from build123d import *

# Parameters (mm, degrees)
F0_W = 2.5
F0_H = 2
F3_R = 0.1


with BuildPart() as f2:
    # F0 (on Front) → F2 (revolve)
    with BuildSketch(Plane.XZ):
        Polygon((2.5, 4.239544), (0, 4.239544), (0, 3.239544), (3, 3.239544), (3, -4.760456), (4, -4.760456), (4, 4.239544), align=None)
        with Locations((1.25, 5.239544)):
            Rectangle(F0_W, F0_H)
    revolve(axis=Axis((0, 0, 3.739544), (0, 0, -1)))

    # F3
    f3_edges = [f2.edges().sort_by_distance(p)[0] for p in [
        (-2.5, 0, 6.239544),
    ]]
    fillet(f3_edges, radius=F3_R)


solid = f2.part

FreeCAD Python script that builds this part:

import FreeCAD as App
import Part
import Sketcher
Q = App.Units.Quantity


def edges_at(feature, points):
    """Names of the edges that pass closest to the given points."""
    edges = feature.Shape.Edges
    near = lambda p: min(range(len(edges)), key=lambda i: edges[i].distToShape(Part.Vertex(*p))[0])
    return sorted({f"Edge{near(p) + 1}" for p in points})

doc = App.newDocument("Part")
body = doc.addObject("PartDesign::Body", "Body")

# Sketch on XZ plane
sketch1 = body.newObject("Sketcher::SketchObject", "Sketch")
sketch1.AttachmentSupport = (doc.getObject("XZ_Plane"), [""])
sketch1.MapMode = "FlatFace"
sketch1.addGeometry(Part.LineSegment(App.Vector(0, 3.2, 0), App.Vector(3, 3.2, 0)), False)
sketch1.addGeometry(Part.LineSegment(App.Vector(3, 3.2, 0), App.Vector(3, -4.8, 0)), False)
sketch1.addGeometry(Part.LineSegment(App.Vector(3, -4.8, 0), App.Vector(4, -4.8, 0)), False)
sketch1.addGeometry(Part.LineSegment(App.Vector(4, -4.8, 0), App.Vector(4, 4.2, 0)), False)
sketch1.addGeometry(Part.LineSegment(App.Vector(4, 4.2, 0), App.Vector(2.5, 4.2, 0)), False)
sketch1.addGeometry(Part.LineSegment(App.Vector(2.5, 4.2, 0), App.Vector(2.5, 6.2, 0)), False)
sketch1.addGeometry(Part.LineSegment(App.Vector(2.5, 6.2, 0), App.Vector(0, 6.2, 0)), False)
sketch1.addGeometry(Part.LineSegment(App.Vector(0, 6.2, 0), App.Vector(0, 3.2, 0)), False)
sketch1.addConstraint(Sketcher.Constraint("Coincident", 0, 2, 1, 1))
sketch1.addConstraint(Sketcher.Constraint("Coincident", 1, 2, 2, 1))
sketch1.addConstraint(Sketcher.Constraint("Coincident", 2, 2, 3, 1))
sketch1.addConstraint(Sketcher.Constraint("Coincident", 3, 2, 4, 1))
sketch1.addConstraint(Sketcher.Constraint("Coincident", 4, 2, 5, 1))
sketch1.addConstraint(Sketcher.Constraint("Coincident", 5, 2, 6, 1))
sketch1.addConstraint(Sketcher.Constraint("Coincident", 6, 2, 7, 1))
sketch1.addConstraint(Sketcher.Constraint("Coincident", 7, 2, 0, 1))
sketch1.addConstraint(Sketcher.Constraint("Horizontal", 0))
sketch1.addConstraint(Sketcher.Constraint("Vertical", 1))
sketch1.addConstraint(Sketcher.Constraint("Horizontal", 2))
sketch1.addConstraint(Sketcher.Constraint("Vertical", 3))
sketch1.addConstraint(Sketcher.Constraint("Horizontal", 4))
sketch1.addConstraint(Sketcher.Constraint("Vertical", 5))
sketch1.addConstraint(Sketcher.Constraint("Horizontal", 6))
sketch1.addConstraint(Sketcher.Constraint("Vertical", 7))
sketch1.addConstraint(Sketcher.Constraint("PointOnObject", 6, 2, -2))
sketch1.addConstraint(Sketcher.Constraint("Equal", 0, 7))
sketch1.addConstraint(Sketcher.Constraint("DistanceX", 0, 1, 0, 2, Q("3 mm")))
sketch1.addConstraint(Sketcher.Constraint("DistanceX", 2, 1, 2, 2, Q("1 mm")))
sketch1.addConstraint(Sketcher.Constraint("DistanceY", 1, 2, 1, 1, Q("8 mm")))
sketch1.addConstraint(Sketcher.Constraint("DistanceY", 3, 1, 3, 2, Q("9 mm")))
sketch1.addConstraint(Sketcher.Constraint("DistanceX", 4, 2, 4, 1, Q("1.5 mm")))
sketch1.addConstraint(Sketcher.Constraint("DistanceY", -1, 1, 0, 2, Q("3.239544 mm")))
revolution = body.newObject("PartDesign::Revolution", "Revolution")
revolution.Profile = sketch1
revolution.ReferenceAxis = (sketch1, ["V_Axis"])
revolution.Angle = 360
doc.recompute()

fillet = body.newObject("PartDesign::Fillet", "Fillet")
fillet.Base = (revolution, edges_at(revolution, [(-2.5, 0, 6.24)]))
fillet.Radius = 0.1

doc.recompute()
